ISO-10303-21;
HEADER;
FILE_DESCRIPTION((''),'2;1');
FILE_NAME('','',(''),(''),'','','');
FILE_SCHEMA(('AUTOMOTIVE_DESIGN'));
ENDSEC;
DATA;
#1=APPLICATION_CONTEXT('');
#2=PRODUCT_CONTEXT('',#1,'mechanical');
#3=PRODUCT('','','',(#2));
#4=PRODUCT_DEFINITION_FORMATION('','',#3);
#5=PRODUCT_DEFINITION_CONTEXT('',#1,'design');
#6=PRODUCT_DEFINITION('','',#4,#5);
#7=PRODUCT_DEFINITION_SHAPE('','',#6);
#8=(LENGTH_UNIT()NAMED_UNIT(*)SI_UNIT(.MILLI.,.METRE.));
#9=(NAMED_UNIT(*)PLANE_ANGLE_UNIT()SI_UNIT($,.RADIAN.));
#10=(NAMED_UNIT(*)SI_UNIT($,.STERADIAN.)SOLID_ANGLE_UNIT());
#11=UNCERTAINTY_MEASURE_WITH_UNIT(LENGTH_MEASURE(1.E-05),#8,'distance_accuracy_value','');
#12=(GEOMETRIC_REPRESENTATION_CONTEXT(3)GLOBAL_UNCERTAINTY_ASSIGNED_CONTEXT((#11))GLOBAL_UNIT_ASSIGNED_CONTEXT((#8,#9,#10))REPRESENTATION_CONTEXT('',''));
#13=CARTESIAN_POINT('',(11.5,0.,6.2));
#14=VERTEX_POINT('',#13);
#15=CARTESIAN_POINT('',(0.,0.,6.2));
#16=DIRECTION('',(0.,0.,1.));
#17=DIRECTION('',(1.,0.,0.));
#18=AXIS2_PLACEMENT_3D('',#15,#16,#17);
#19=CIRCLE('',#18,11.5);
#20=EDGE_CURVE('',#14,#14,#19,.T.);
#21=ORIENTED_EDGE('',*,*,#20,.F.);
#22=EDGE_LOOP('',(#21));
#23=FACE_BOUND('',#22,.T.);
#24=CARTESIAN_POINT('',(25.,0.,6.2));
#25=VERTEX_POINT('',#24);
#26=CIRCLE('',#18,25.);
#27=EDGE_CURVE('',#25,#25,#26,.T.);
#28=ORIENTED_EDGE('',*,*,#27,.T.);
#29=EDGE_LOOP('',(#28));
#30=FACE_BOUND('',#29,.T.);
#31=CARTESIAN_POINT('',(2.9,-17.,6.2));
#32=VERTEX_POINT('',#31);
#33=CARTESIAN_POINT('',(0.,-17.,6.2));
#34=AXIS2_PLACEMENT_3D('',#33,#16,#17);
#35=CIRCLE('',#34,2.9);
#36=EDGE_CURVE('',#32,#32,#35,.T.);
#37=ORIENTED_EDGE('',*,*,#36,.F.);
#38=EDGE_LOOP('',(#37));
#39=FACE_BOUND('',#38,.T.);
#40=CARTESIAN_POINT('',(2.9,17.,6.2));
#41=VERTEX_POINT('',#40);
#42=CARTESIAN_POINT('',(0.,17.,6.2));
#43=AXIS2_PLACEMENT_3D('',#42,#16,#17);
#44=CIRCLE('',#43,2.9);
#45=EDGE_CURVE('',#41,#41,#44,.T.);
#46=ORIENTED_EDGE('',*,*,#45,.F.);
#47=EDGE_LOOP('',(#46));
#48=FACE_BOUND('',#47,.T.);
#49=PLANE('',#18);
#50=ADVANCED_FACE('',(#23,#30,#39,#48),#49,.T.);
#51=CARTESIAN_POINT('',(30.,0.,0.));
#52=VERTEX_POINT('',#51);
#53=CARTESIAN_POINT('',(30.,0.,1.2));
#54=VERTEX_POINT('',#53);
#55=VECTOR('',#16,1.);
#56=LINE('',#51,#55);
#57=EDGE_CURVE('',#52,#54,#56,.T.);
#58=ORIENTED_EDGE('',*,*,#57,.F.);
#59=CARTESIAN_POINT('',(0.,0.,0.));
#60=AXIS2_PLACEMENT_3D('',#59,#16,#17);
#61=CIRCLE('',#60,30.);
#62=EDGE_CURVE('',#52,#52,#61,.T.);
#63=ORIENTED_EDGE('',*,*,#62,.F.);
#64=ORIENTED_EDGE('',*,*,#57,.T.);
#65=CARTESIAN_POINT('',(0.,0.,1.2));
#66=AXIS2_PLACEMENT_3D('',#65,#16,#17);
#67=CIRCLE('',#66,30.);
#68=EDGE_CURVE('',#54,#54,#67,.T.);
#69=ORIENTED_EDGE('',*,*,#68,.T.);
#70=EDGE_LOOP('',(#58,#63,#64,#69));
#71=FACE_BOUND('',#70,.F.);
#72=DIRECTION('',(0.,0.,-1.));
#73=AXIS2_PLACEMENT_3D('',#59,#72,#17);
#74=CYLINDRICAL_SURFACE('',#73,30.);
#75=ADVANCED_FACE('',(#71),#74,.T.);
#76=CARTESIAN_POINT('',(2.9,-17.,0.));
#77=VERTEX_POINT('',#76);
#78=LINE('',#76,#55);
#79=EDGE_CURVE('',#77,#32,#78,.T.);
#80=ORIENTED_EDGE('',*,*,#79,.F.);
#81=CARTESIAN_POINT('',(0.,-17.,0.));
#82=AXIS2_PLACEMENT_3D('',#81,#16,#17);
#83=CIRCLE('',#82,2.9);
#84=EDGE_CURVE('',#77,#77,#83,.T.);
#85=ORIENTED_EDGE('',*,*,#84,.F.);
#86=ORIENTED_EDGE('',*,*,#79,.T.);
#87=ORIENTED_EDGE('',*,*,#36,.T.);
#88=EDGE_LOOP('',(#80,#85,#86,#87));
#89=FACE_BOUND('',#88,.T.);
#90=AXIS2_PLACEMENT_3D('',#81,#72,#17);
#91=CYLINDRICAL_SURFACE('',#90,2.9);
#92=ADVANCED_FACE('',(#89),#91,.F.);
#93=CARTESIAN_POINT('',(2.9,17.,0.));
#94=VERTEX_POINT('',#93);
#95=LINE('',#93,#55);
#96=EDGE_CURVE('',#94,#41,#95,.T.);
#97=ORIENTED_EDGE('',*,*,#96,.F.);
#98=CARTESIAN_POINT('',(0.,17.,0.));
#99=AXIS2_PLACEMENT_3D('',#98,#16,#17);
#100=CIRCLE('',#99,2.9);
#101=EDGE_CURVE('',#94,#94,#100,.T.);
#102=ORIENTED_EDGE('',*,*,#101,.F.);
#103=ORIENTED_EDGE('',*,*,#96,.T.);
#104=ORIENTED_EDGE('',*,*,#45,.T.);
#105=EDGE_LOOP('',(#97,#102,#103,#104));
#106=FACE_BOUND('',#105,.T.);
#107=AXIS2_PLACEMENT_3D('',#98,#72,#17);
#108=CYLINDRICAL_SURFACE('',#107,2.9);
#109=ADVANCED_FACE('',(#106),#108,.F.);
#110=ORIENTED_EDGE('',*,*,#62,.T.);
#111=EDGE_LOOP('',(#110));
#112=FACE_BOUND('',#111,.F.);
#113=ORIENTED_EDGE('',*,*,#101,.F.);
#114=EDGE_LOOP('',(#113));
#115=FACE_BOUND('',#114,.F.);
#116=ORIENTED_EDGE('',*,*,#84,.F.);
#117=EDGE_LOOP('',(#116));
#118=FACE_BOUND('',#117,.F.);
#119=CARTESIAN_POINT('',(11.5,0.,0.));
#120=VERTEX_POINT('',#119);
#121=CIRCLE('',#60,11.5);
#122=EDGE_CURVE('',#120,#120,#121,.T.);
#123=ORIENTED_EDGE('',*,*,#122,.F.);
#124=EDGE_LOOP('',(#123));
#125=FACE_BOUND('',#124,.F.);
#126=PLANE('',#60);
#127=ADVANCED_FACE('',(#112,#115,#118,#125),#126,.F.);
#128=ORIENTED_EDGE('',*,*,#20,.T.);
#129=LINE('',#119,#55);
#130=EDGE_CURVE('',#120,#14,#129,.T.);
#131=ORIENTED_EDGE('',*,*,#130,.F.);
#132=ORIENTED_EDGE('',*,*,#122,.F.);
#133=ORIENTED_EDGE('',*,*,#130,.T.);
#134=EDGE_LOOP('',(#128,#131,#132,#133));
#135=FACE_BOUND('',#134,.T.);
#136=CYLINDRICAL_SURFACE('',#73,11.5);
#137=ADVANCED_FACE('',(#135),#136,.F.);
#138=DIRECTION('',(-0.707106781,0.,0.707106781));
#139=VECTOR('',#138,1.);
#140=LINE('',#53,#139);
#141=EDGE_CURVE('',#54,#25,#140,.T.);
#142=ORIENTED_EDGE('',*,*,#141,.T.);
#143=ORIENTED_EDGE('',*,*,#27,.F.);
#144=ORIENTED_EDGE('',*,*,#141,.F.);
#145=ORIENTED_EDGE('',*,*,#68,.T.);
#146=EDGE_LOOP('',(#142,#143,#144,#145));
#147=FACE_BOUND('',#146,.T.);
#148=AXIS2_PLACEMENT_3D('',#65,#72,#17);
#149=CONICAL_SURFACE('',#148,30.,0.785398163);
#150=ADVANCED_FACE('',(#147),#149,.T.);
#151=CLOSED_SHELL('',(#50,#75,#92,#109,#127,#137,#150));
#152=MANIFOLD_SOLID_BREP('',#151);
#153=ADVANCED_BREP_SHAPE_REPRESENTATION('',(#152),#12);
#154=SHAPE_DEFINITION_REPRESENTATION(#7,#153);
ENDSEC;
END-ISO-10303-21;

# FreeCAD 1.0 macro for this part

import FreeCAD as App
import Part
import Sketcher
from FreeCAD import Vector


def edges_at(feature, points):
    """Names of the edges that pass closest to the given points."""
    edges = feature.Shape.Edges
    near = lambda p: min(range(len(edges)), key=lambda i: edges[i].distToShape(Part.Vertex(*p))[0])
    return sorted({f"Edge{near(p) + 1}" for p in points})

doc = App.newDocument("Part")
params = doc.addObject("Spreadsheet::Sheet", "Params")
for row, (alias, value) in enumerate([
    ("sketch1_diameter", "60 mm"),
    ("sketch1_diameter2", "23 mm"),
    ("sketch1_diameter3", "5.8 mm"),
    ("pad1_length", "6.2 mm"),
    ("chamfer_size", "5 mm"),
], start=1):
    params.set(f"A{row}", alias)
    params.set(f"B{row}", "=" + value)
    params.setAlias(f"B{row}", alias)

body = doc.addObject("PartDesign::Body", "Body")

sketch1 = body.newObject("Sketcher::SketchObject", "Sketch")
sketch1.AttachmentSupport = (doc.getObject("XY_Plane"), [""])
sketch1.MapMode = "FlatFace"
sketch1.addGeometry([
    Part.Circle(Vector(0, 0, 0), Vector(0, 0, 1), 30),
    Part.Circle(Vector(0, -17, 0), Vector(0, 0, 1), 2.9),
    Part.Circle(Vector(0, 0, 0), Vector(0, 0, 1), 11.5),
    Part.Circle(Vector(0, 17, 0), Vector(0, 0, 1), 2.9),
], False)
sketch1.addConstraint([
    Sketcher.Constraint("Coincident", 0, 3, -1, 1),
    Sketcher.Constraint("Coincident", 2, 3, -1, 1),
    Sketcher.Constraint("Equal", 1, 3),
    Sketcher.Constraint("Symmetric", 1, 3, 3, 3, -1, 1),
    Sketcher.Constraint("PointOnObject", 1, 3, -2),
    Sketcher.Constraint("Diameter", 0, 60.0),
    Sketcher.Constraint("Diameter", 2, 23.0),
    Sketcher.Constraint("Diameter", 1, 5.8),
    Sketcher.Constraint("DistanceY", 1, 3, -1, 1, 17.0),
])
sketch1.setExpression("Constraints[5]", "Params.sketch1_diameter")
sketch1.setExpression("Constraints[6]", "Params.sketch1_diameter2")
sketch1.setExpression("Constraints[7]", "Params.sketch1_diameter3")
pad1 = body.newObject("PartDesign::Pad", "Pad")
pad1.Profile = sketch1
pad1.setExpression("Length", "Params.pad1_length")
doc.recompute()

chamfer = body.newObject("PartDesign::Chamfer", "Chamfer")
chamfer.Base = (pad1, edges_at(pad1, [(-30, 0, 6.2)]))
chamfer.setExpression("Size", "Params.chamfer_size")

doc.recompute()
